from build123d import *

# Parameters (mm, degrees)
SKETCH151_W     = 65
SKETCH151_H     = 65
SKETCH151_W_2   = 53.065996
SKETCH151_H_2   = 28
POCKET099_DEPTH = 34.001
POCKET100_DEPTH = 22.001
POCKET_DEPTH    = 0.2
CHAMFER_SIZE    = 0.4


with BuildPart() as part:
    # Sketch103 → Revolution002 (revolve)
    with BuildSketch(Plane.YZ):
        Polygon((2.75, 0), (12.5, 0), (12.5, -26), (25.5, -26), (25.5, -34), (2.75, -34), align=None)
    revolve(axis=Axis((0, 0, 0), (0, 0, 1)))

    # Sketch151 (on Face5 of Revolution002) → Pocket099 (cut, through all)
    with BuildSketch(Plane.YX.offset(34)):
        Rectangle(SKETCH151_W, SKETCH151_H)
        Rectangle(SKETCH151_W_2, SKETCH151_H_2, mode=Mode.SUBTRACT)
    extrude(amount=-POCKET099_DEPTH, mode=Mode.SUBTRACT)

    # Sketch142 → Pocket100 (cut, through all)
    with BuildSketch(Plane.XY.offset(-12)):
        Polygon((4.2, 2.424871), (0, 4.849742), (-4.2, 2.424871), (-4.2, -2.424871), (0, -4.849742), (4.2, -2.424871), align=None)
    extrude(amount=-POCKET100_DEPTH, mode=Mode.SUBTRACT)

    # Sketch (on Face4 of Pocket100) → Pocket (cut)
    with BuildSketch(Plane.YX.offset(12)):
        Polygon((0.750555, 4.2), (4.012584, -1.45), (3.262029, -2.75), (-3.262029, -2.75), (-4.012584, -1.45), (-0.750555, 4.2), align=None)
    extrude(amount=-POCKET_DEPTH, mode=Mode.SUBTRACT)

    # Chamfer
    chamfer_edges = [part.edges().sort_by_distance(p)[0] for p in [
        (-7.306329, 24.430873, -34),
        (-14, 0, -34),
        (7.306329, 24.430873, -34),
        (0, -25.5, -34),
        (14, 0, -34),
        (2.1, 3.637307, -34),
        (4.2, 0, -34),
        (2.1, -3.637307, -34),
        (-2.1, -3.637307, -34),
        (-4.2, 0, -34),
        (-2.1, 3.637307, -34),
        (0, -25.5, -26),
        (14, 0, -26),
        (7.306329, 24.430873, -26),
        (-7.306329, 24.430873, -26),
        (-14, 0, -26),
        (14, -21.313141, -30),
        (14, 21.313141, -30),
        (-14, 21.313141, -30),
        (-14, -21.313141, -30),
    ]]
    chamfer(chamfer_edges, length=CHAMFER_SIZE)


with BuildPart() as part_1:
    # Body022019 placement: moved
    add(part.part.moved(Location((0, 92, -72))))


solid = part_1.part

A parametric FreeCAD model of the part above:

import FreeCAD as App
import Part
import Sketcher

V = App.Vector
Q = App.Units.Quantity


def edges_at(feature, points):
    """Names of the edges that pass closest to the given points."""
    edges = feature.Shape.Edges
    near = lambda p: min(range(len(edges)), key=lambda i: edges[i].distToShape(Part.Vertex(*p))[0])
    return sorted({f"Edge{near(p) + 1}" for p in points})

doc = App.newDocument("Part")
body = doc.addObject("PartDesign::Body", "Body")

sketch1 = body.newObject("Sketcher::SketchObject", "Sketch")
sketch1.AttachmentSupport = (doc.getObject("YZ_Plane"), [""])
sketch1.MapMode = "FlatFace"
sketch1.addGeometry([
    Part.LineSegment(V(12, 0, 0), V(3, 0, 0)),
    Part.LineSegment(V(3, 0, 0), V(3, -34, 0)),
    Part.LineSegment(V(3, -34, 0), V(26, -34, 0)),
    Part.LineSegment(V(26, -34, 0), V(26, -26, 0)),
    Part.LineSegment(V(26, -26, 0), V(12, -26, 0)),
    Part.LineSegment(V(12, -26, 0), V(12, 0, 0)),
], False)
sketch1.addConstraint([
    Sketcher.Constraint("Coincident", 0, 2, 1, 1),
    Sketcher.Constraint("Coincident", 1, 2, 2, 1),
    Sketcher.Constraint("Coincident", 2, 2, 3, 1),
    Sketcher.Constraint("Coincident", 3, 2, 4, 1),
    Sketcher.Constraint("Coincident", 4, 2, 5, 1),
    Sketcher.Constraint("Coincident", 5, 2, 0, 1),
    Sketcher.Constraint("Horizontal", 0),
    Sketcher.Constraint("Vertical", 1),
    Sketcher.Constraint("Horizontal", 2),
    Sketcher.Constraint("Vertical", 3),
    Sketcher.Constraint("Horizontal", 4),
    Sketcher.Constraint("Vertical", 5),
    Sketcher.Constraint("PointOnObject", 0, 2, -1),
    Sketcher.Constraint("DistanceX", 4, 2, 4, 1, 13.0),
    Sketcher.Constraint("DistanceY", 1, 2, 1, 1, 34.0),
    Sketcher.Constraint("DistanceY", 3, 1, 3, 2, 8.0),
    Sketcher.Constraint("DistanceX", 0, 2, 0, 1, 9.75),
    Sketcher.Constraint("DistanceX", -1, 1, 2, 2, 25.5),
])
revolution = body.newObject("PartDesign::Revolution", "Revolution")
revolution.Profile = sketch1
revolution.ReferenceAxis = (sketch1, ["V_Axis"])
revolution.Angle = 360

sketch2 = body.newObject("Sketcher::SketchObject", "Sketch001")
sketch2.AttachmentSupport = (doc.getObject("XY_Plane"), [""])
sketch2.MapMode = "FlatFace"
sketch2.AttachmentOffset = App.Placement(V(0, 0, -34), App.Rotation())
sketch2.addGeometry([
    Part.LineSegment(V(32, -32, 0), V(-32, -32, 0)),
    Part.LineSegment(V(-32, -32, 0), V(-32, 32, 0)),
    Part.LineSegment(V(-32, 32, 0), V(32, 32, 0)),
    Part.LineSegment(V(32, 32, 0), V(32, -32, 0)),
    Part.LineSegment(V(-14, 27, 0), V(-14, -27, 0)),
    Part.LineSegment(V(-14, -27, 0), V(14, -27, 0)),
    Part.LineSegment(V(14, -27, 0), V(14, 27, 0)),
    Part.LineSegment(V(14, 27, 0), V(-14, 27, 0)),
], False)
sketch2.addConstraint([
    Sketcher.Constraint("Coincident", 0, 2, 1, 1),
    Sketcher.Constraint("Coincident", 1, 2, 2, 1),
    Sketcher.Constraint("Coincident", 2, 2, 3, 1),
    Sketcher.Constraint("Coincident", 3, 2, 0, 1),
    Sketcher.Constraint("Coincident", 4, 2, 5, 1),
    Sketcher.Constraint("Coincident", 5, 2, 6, 1),
    Sketcher.Constraint("Coincident", 6, 2, 7, 1),
    Sketcher.Constraint("Coincident", 7, 2, 4, 1),
    Sketcher.Constraint("Horizontal", 0),
    Sketcher.Constraint("Vertical", 1),
    Sketcher.Constraint("Horizontal", 2),
    Sketcher.Constraint("Vertical", 3),
    Sketcher.Constraint("Vertical", 4),
    Sketcher.Constraint("Horizontal", 5),
    Sketcher.Constraint("Vertical", 6),
    Sketcher.Constraint("Horizontal", 7),
    Sketcher.Constraint("Symmetric", 0, 2, 2, 2, -1, 1),
    Sketcher.Constraint("Symmetric", 4, 2, 6, 2, -1, 1),
    Sketcher.Constraint("Equal", 2, 1),
    Sketcher.Constraint("DistanceX", 0, 2, 0, 1, 65.0),
    Sketcher.Constraint("DistanceX", 5, 1, 5, 2, 28.0),
    Sketcher.Constraint("DistanceY", 4, 2, 4, 1, 53.065996),
])
pocket1 = body.newObject("PartDesign::Pocket", "Pocket")
pocket1.Profile = sketch2
pocket1.Type = "ThroughAll"
pocket1.Reversed = True

sketch3 = body.newObject("Sketcher::SketchObject", "Sketch002")
sketch3.AttachmentSupport = (doc.getObject("XY_Plane"), [""])
sketch3.MapMode = "FlatFace"
sketch3.AttachmentOffset = App.Placement(V(0, 0, -12), App.Rotation())
sketch3.addGeometry([
    Part.LineSegment(V(4.2, 2.4, 0), V(0, 4.8, 0)),
    Part.LineSegment(V(0, 4.8, 0), V(-4.2, 2.4, 0)),
    Part.LineSegment(V(-4.2, 2.4, 0), V(-4.2, -2.4, 0)),
    Part.LineSegment(V(-4.2, -2.4, 0), V(0, -4.8, 0)),
    Part.LineSegment(V(0, -4.8, 0), V(4.2, -2.4, 0)),
    Part.LineSegment(V(4.2, -2.4, 0), V(4.2, 2.4, 0)),
], False)
sketch3.addConstraint([
    Sketcher.Constraint("Coincident", 0, 2, 1, 1),
    Sketcher.Constraint("Coincident", 1, 2, 2, 1),
    Sketcher.Constraint("Coincident", 2, 2, 3, 1),
    Sketcher.Constraint("Coincident", 3, 2, 4, 1),
    Sketcher.Constraint("Coincident", 4, 2, 5, 1),
    Sketcher.Constraint("Coincident", 5, 2, 0, 1),
    Sketcher.Constraint("Vertical", 2),
    Sketcher.Constraint("Vertical", 5),
    Sketcher.Constraint("Symmetric", 0, 2, 3, 2, -1, 1),
    Sketcher.Constraint("Symmetric", 1, 2, 4, 2, -1, 1),
    Sketcher.Constraint("PointOnObject", 0, 2, -2),
    Sketcher.Constraint("Parallel", 0, 3),
    Sketcher.Constraint("Horizontal", 2, 2, 4, 2),
    Sketcher.Constraint("Angle", 0, Q("150.000001 deg")),
    Sketcher.Constraint("DistanceX", 1, 2, -1, 1, 4.2),
    Sketcher.Constraint("DistanceY", 2, 2, 2, 1, 4.849742),
])
pocket2 = body.newObject("PartDesign::Pocket", "Pocket001")
pocket2.Profile = sketch3
pocket2.Type = "ThroughAll"

sketch4 = body.newObject("Sketcher::SketchObject", "Sketch003")
sketch4.AttachmentSupport = (doc.getObject("XY_Plane"), [""])
sketch4.MapMode = "FlatFace"
sketch4.AttachmentOffset = App.Placement(V(0, 0, -12), App.Rotation())
sketch4.addGeometry([
    Part.LineSegment(V(-1.4, 4, 0), V(4.2, 0.8, 0)),
    Part.LineSegment(V(4.2, 0.8, 0), V(4.2, -0.8, 0)),
    Part.LineSegment(V(4.2, -0.8, 0), V(-1.4, -4, 0)),
    Part.LineSegment(V(-1.4, -4, 0), V(-2.8, -3.3, 0)),
    Part.LineSegment(V(-2.8, -3.3, 0), V(-2.8, 3.3, 0)),
    Part.LineSegment(V(-2.8, 3.3, 0), V(-1.4, 4, 0)),
], False)
sketch4.addConstraint([
    Sketcher.Constraint("Coincident", 0, 2, 1, 1),
    Sketcher.Constraint("Coincident", 1, 2, 2, 1),
    Sketcher.Constraint("Coincident", 2, 2, 3, 1),
    Sketcher.Constraint("Coincident", 3, 2, 4, 1),
    Sketcher.Constraint("Coincident", 4, 2, 5, 1),
    Sketcher.Constraint("Coincident", 5, 2, 0, 1),
    Sketcher.Constraint("Vertical", 1),
    Sketcher.Constraint("Vertical", 4),
    Sketcher.Constraint("Symmetric", 2, 2, 5, 2, -1),
    Sketcher.Constraint("Parallel", 0, 3),
    Sketcher.Constraint("Parallel", 2, 5),
    Sketcher.Constraint("Equal", 0, 2),
    Sketcher.Constraint("Angle", 0, Q("-30 deg")),
    Sketcher.Constraint("DistanceX", -1, 1, 0, 2, 4.2),
    Sketcher.Constraint("DistanceX", 3, 2, 2, 2, 1.3),
    Sketcher.Constraint("DistanceX", 2, 2, -1, 1, 1.45),
    Sketcher.Constraint("DistanceY", 1, 2, 1, 1, 1.50111),
])
pocket3 = body.newObject("PartDesign::Pocket", "Pocket002")
pocket3.Profile = sketch4
pocket3.Length = 0.2
pocket3.Reversed = True
doc.recompute()

chamfer = body.newObject("PartDesign::Chamfer", "Chamfer")
chamfer.Base = (pocket3, edges_at(pocket3, [
    (0, 25.5, -34),
    (-14, 0, -34),
    (0, 25.5, -34),
    (0, -25.5, -34),
    (14, 0, -34),
    (2.1, 3.637, -34),
    (4.2, 0, -34),
    (2.1, -3.637, -34),
    (-2.1, -3.637, -34),
    (-4.2, 0, -34),
    (-2.1, 3.637, -34),
    (0, -25.5, -26),
    (14, 0, -26),
    (0, 25.5, -26),
    (0, 25.5, -26),
    (-14, 0, -26),
    (14, -21.313, -30),
    (14, 21.313, -30),
    (-14, 21.313, -30),
    (-14, -21.313, -30),
]))
chamfer.Size = 0.4
body2 = doc.addObject("PartDesign::Body", "Body001")
doc.recompute()

body.Placement = App.Placement(V(0, 92, -72), App.Rotation(V(0, 0, 1), 0))
boolean = body2.newObject("PartDesign::Boolean", "Boolean")
boolean.Type = "Fuse"
boolean.addObjects([body])

doc.recompute()
